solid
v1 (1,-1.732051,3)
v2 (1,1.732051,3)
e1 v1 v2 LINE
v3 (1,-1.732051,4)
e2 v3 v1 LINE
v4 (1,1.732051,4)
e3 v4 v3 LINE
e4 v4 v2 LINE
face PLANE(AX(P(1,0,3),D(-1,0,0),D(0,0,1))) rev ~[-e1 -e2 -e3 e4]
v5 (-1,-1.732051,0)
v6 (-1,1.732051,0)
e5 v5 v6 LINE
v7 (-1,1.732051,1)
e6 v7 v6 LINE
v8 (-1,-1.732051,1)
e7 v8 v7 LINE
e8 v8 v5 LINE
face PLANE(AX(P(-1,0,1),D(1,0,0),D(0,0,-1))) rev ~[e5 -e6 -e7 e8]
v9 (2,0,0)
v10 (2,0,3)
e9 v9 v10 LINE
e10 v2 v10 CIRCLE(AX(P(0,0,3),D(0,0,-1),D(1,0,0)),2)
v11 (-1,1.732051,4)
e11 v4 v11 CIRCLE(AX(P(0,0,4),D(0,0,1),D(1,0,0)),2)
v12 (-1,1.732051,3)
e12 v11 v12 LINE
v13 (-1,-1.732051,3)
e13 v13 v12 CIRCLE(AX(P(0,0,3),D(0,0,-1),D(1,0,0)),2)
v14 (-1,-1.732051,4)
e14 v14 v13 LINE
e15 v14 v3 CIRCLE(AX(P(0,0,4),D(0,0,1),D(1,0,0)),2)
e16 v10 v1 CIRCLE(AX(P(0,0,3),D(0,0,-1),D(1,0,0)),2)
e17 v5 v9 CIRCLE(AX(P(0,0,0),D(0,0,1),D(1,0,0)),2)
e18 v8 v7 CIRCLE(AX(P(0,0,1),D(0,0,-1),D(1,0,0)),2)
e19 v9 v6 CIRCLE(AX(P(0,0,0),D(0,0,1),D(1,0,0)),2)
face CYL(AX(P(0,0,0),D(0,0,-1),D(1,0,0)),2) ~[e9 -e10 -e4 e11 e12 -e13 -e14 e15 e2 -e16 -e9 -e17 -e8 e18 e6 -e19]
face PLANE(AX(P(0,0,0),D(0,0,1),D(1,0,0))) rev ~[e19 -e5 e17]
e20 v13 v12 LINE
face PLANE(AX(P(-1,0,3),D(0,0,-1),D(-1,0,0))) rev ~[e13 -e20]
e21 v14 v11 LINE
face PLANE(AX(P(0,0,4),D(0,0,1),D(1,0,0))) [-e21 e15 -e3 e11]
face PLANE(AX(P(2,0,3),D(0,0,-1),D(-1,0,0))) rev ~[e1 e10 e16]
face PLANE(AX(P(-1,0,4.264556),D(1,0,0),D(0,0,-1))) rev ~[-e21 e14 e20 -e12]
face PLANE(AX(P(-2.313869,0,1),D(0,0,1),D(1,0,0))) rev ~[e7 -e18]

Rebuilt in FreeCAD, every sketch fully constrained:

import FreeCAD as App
import Part
import Sketcher
Q = App.Units.Quantity

doc = App.newDocument("Part")
body = doc.addObject("PartDesign::Body", "Body")

# Sketch on XY plane
sketch1 = body.newObject("Sketcher::SketchObject", "Sketch")
sketch1.AttachmentSupport = (doc.getObject("XY_Plane"), [""])
sketch1.MapMode = "FlatFace"
sketch1.addGeometry(Part.Circle(App.Vector(0, 0, 0), App.Vector(0, 0, 1), 2), False)
sketch1.addConstraint([
    Sketcher.Constraint("Coincident", 0, 3, -1, 1),
    Sketcher.Constraint("Diameter", 0, Q("4 mm")),
])
pad1 = body.newObject("PartDesign::Pad", "Pad")
pad1.Profile = sketch1
pad1.Length = 4

# Sketch on XZ plane
sketch2 = body.newObject("Sketcher::SketchObject", "Sketch001")
sketch2.AttachmentSupport = (doc.getObject("XZ_Plane"), [""])
sketch2.MapMode = "FlatFace"
sketch2.addGeometry([
    Part.LineSegment(App.Vector(2, 3, 0), App.Vector(1, 3, 0)),  # 0
    Part.LineSegment(App.Vector(1, 3, 0), App.Vector(1, 4.2, 0)),  # 1
    Part.LineSegment(App.Vector(1, 4.2, 0), App.Vector(-1, 4.3, 0)),  # 2
    Part.LineSegment(App.Vector(-1, 4.3, 0), App.Vector(-1, 3, 0)),  # 3
    Part.LineSegment(App.Vector(-1, 3, 0), App.Vector(-2.3, 3, 0)),  # 4
    Part.LineSegment(App.Vector(-2.3, 3, 0), App.Vector(-2.3, 1, 0)),  # 5
    Part.LineSegment(App.Vector(-2.3, 1, 0), App.Vector(-1, 1, 0)),  # 6
    Part.LineSegment(App.Vector(-1, 1, 0), App.Vector(-1, -0.2, 0)),  # 7
    Part.LineSegment(App.Vector(-1, -0.2, 0), App.Vector(-2.6, -0.2, 0)),  # 8
    Part.LineSegment(App.Vector(-2.6, -0.2, 0), App.Vector(-2.5, 4.3, 0)),  # 9
    Part.LineSegment(App.Vector(-2.5, 4.3, 0), App.Vector(2, 4.6, 0)),  # 10
    Part.LineSegment(App.Vector(2, 4.6, 0), App.Vector(2.6, 4.2, 0)),  # 11
    Part.LineSegment(App.Vector(2.6, 4.2, 0), App.Vector(2, 3, 0)),  # 12
], False)
sketch2.addConstraint([
    Sketcher.Constraint("Coincident", 0, 2, 1, 1),
    Sketcher.Constraint("Coincident", 1, 2, 2, 1),
    Sketcher.Constraint("Coincident", 2, 2, 3, 1),
    Sketcher.Constraint("Coincident", 3, 2, 4, 1),
    Sketcher.Constraint("Coincident", 4, 2, 5, 1),
    Sketcher.Constraint("Coincident", 5, 2, 6, 1),
    Sketcher.Constraint("Coincident", 6, 2, 7, 1),
    Sketcher.Constraint("Coincident", 7, 2, 8, 1),
    Sketcher.Constraint("Coincident", 8, 2, 9, 1),
    Sketcher.Constraint("Coincident", 9, 2, 10, 1),
    Sketcher.Constraint("Coincident", 10, 2, 11, 1),
    Sketcher.Constraint("Coincident", 11, 2, 12, 1),
    Sketcher.Constraint("Coincident", 12, 2, 0, 1),
    Sketcher.Constraint("Horizontal", 0),
    Sketcher.Constraint("Vertical", 1),
    Sketcher.Constraint("Vertical", 3),
    Sketcher.Constraint("Horizontal", 4),
    Sketcher.Constraint("Vertical", 5),
    Sketcher.Constraint("Horizontal", 6),
    Sketcher.Constraint("Vertical", 7),
    Sketcher.Constraint("Symmetric", 0, 2, 3, 2, -2),
    Sketcher.Constraint("Parallel", 2, 8),
    Sketcher.Constraint("Perpendicular", 8, 9),
    Sketcher.Constraint("Horizontal", 1, 2, 11, 2),
    Sketcher.Constraint("Vertical", 3, 2, 6, 2),
    Sketcher.Constraint("Vertical", 10, 2, 12, 2),
    Sketcher.Constraint("DistanceX", 0, 2, 0, 1, Q("1 mm")),
    Sketcher.Constraint("DistanceY", 5, 2, 5, 1, Q("2 mm")),
    Sketcher.Constraint("DistanceX", -1, 1, 0, 2, Q("1 mm")),
    Sketcher.Constraint("DistanceY", -1, 1, 0, 2, Q("3 mm")),
    Sketcher.Constraint("DistanceX", 4, 2, 4, 1, Q("1.313869 mm")),
    Sketcher.Constraint("DistanceY", 1, 1, 1, 2, Q("1.221508 mm")),
    Sketcher.Constraint("DistanceY", 3, 2, 3, 1, Q("1.264556 mm")),
    Sketcher.Constraint("DistanceY", 7, 2, 7, 1, Q("1.234035 mm")),
    Sketcher.Constraint("DistanceX", 8, 2, -1, 1, Q("2.58676 mm")),
    Sketcher.Constraint("DistanceY", -1, 1, 9, 2, Q("4.30698 mm")),
    Sketcher.Constraint("DistanceX", -1, 1, 11, 2, Q("2.554572 mm")),
    Sketcher.Constraint("Distance", 10, Q("4.500584 mm")),
])
pocket1 = body.newObject("PartDesign::Pocket", "Pocket")
pocket1.Profile = sketch2
pocket1.Length = 10
pocket1.Midplane = True

doc.recompute()
